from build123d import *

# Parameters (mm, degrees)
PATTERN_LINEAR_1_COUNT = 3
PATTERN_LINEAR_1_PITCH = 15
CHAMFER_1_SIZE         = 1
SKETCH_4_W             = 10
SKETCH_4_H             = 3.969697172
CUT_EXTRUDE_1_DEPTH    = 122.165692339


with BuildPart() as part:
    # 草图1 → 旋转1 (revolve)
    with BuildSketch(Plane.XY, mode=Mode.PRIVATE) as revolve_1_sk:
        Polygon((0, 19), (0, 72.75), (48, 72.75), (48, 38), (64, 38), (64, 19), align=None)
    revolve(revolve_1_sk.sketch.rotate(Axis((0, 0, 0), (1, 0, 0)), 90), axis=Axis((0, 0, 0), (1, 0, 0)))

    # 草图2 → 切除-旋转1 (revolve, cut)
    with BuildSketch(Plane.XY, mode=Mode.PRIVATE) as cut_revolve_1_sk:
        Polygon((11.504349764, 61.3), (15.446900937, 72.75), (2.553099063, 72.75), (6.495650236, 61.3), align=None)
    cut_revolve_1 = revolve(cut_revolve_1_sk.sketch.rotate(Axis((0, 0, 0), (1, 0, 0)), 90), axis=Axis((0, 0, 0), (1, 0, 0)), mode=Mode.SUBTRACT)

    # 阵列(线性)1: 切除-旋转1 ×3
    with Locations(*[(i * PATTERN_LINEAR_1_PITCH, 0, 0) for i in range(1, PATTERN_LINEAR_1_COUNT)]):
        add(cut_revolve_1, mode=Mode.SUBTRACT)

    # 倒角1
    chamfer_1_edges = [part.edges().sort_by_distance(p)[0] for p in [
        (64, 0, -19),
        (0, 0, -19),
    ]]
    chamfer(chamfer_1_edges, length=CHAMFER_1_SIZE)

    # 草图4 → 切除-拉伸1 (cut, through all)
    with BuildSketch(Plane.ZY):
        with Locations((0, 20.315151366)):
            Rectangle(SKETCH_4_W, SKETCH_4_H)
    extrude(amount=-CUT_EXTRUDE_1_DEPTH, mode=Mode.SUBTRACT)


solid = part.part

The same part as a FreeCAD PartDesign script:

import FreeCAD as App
import Part
import Sketcher

V = App.Vector
Q = App.Units.Quantity


def edges_at(feature, points):
    """Names of the edges that pass closest to the given points."""
    edges = feature.Shape.Edges
    near = lambda p: min(range(len(edges)), key=lambda i: edges[i].distToShape(Part.Vertex(*p))[0])
    return sorted({f"Edge{near(p) + 1}" for p in points})

doc = App.newDocument("Part")
body = doc.addObject("PartDesign::Body", "Body")

# Sketch on XY plane
sketch1 = doc.addObject("Sketcher::SketchObject", "Sketch")
body.addObject(sketch1)
sketch1.AttachmentSupport = (doc.XY_Plane, [""])
sketch1.MapMode = "FlatFace"
sketch1.addGeometry(Part.LineSegment(V(0, 73, 0), V(0, 19, 0)), False)
sketch1.addGeometry(Part.LineSegment(V(0, 19, 0), V(64, 19, 0)), False)
sketch1.addGeometry(Part.LineSegment(V(64, 19, 0), V(64, 38, 0)), False)
sketch1.addGeometry(Part.LineSegment(V(64, 38, 0), V(48, 38, 0)), False)
sketch1.addGeometry(Part.LineSegment(V(48, 38, 0), V(48, 73, 0)), False)
sketch1.addGeometry(Part.LineSegment(V(48, 73, 0), V(0, 73, 0)), False)
sketch1.addConstraint(Sketcher.Constraint("Coincident", 0, 2, 1, 1))
sketch1.addConstraint(Sketcher.Constraint("Coincident", 1, 2, 2, 1))
sketch1.addConstraint(Sketcher.Constraint("Coincident", 2, 2, 3, 1))
sketch1.addConstraint(Sketcher.Constraint("Coincident", 3, 2, 4, 1))
sketch1.addConstraint(Sketcher.Constraint("Coincident", 4, 2, 5, 1))
sketch1.addConstraint(Sketcher.Constraint("Coincident", 5, 2, 0, 1))
sketch1.addConstraint(Sketcher.Constraint("Vertical", 0))
sketch1.addConstraint(Sketcher.Constraint("Horizontal", 1))
sketch1.addConstraint(Sketcher.Constraint("Vertical", 2))
sketch1.addConstraint(Sketcher.Constraint("Horizontal", 3))
sketch1.addConstraint(Sketcher.Constraint("Vertical", 4))
sketch1.addConstraint(Sketcher.Constraint("Horizontal", 5))
sketch1.addConstraint(Sketcher.Constraint("PointOnObject", 0, 2, -2))
sketch1.addConstraint(Sketcher.Constraint("DistanceX", 1, 1, 1, 2, 64.0))
sketch1.addConstraint(Sketcher.Constraint("DistanceX", 3, 2, 3, 1, 16.0))
sketch1.addConstraint(Sketcher.Constraint("DistanceY", 2, 1, 2, 2, 19.0))
sketch1.addConstraint(Sketcher.Constraint("DistanceY", -1, 1, 0, 2, 19.0))
sketch1.addConstraint(Sketcher.Constraint("DistanceY", 0, 2, 0, 1, 53.75))
revolution = doc.addObject("PartDesign::Revolution", "Revolution")
body.addObject(revolution)
revolution.Profile = sketch1
revolution.ReferenceAxis = (sketch1, ["H_Axis"])
revolution.Angle = 360

# Sketch on XY plane
sketch2 = doc.addObject("Sketcher::SketchObject", "Sketch001")
body.addObject(sketch2)
sketch2.AttachmentSupport = (doc.XY_Plane, [""])
sketch2.MapMode = "FlatFace"
sketch2.addGeometry(Part.LineSegment(V(12, 61, 0), V(15, 73, 0)), False)
sketch2.addGeometry(Part.LineSegment(V(15, 73, 0), V(3, 73, 0)), False)
sketch2.addGeometry(Part.LineSegment(V(3, 73, 0), V(6, 61, 0)), False)
sketch2.addGeometry(Part.LineSegment(V(6, 61, 0), V(12, 61, 0)), False)
sketch2.addConstraint(Sketcher.Constraint("Coincident", 0, 2, 1, 1))
sketch2.addConstraint(Sketcher.Constraint("Coincident", 1, 2, 2, 1))
sketch2.addConstraint(Sketcher.Constraint("Coincident", 2, 2, 3, 1))
sketch2.addConstraint(Sketcher.Constraint("Coincident", 3, 2, 0, 1))
sketch2.addConstraint(Sketcher.Constraint("Horizontal", 1))
sketch2.addConstraint(Sketcher.Constraint("Horizontal", 3))
sketch2.addConstraint(Sketcher.Constraint("Equal", 0, 2))
sketch2.addConstraint(Sketcher.Constraint("Angle", 0, Q("71 deg")))
sketch2.addConstraint(Sketcher.Constraint("DistanceY", -1, 1, 2, 2, 61.3))
sketch2.addConstraint(Sketcher.Constraint("DistanceY", -1, 1, 0, 2, 72.75))
sketch2.addConstraint(Sketcher.Constraint("DistanceX", 1, 2, 1, 1, 12.893802))
sketch2.addConstraint(Sketcher.Constraint("DistanceX", -1, 1, 0, 2, 15.446901))
groove = doc.addObject("PartDesign::Groove", "Groove")
body.addObject(groove)
groove.Profile = sketch2
groove.ReferenceAxis = (sketch2, ["H_Axis"])
groove.Angle = 360
doc.recompute()

linearpattern = doc.addObject("PartDesign::LinearPattern", "LinearPattern")
body.addObject(linearpattern)
linearpattern.Originals = [groove]
linearpattern.Direction = (doc.X_Axis, [""])
linearpattern.Mode = "offset"
linearpattern.Offset = 15
linearpattern.Occurrences = 3
body.Tip = linearpattern
doc.recompute()

chamfer = doc.addObject("PartDesign::Chamfer", "Chamfer")
body.addObject(chamfer)
chamfer.Base = (linearpattern, edges_at(linearpattern, [(64, 0, -19), (0, 0, -19)]))
chamfer.Size = 1

# Sketch on YZ plane
sketch3 = doc.addObject("Sketcher::SketchObject", "Sketch002")
body.addObject(sketch3)
sketch3.AttachmentSupport = (doc.YZ_Plane, [""])
sketch3.MapMode = "FlatFace"
sketch3.addGeometry(Part.LineSegment(V(22.3, -5, 0), V(18.3, -5, 0)), False)
sketch3.addGeometry(Part.LineSegment(V(18.3, -5, 0), V(18.3, 5, 0)), False)
sketch3.addGeometry(Part.LineSegment(V(18.3, 5, 0), V(22.3, 5, 0)), False)
sketch3.addGeometry(Part.LineSegment(V(22.3, 5, 0), V(22.3, -5, 0)), False)
sketch3.addConstraint(Sketcher.Constraint("Coincident", 0, 2, 1, 1))
sketch3.addConstraint(Sketcher.Constraint("Coincident", 1, 2, 2, 1))
sketch3.addConstraint(Sketcher.Constraint("Coincident", 2, 2, 3, 1))
sketch3.addConstraint(Sketcher.Constraint("Coincident", 3, 2, 0, 1))
sketch3.addConstraint(Sketcher.Constraint("Horizontal", 0))
sketch3.addConstraint(Sketcher.Constraint("Vertical", 1))
sketch3.addConstraint(Sketcher.Constraint("Horizontal", 2))
sketch3.addConstraint(Sketcher.Constraint("Vertical", 3))
sketch3.addConstraint(Sketcher.Constraint("DistanceY", 1, 1, 1, 2, 10.0))
sketch3.addConstraint(Sketcher.Constraint("DistanceY", 0, 2, -1, 1, 5.0))
sketch3.addConstraint(Sketcher.Constraint("DistanceX", -1, 1, 2, 2, 22.3))
sketch3.addConstraint(Sketcher.Constraint("DistanceX", 0, 2, 0, 1, 3.969697))
pocket1 = doc.addObject("PartDesign::Pocket", "Pocket")
body.addObject(pocket1)
pocket1.Profile = sketch3
pocket1.Type = "ThroughAll"
pocket1.Reversed = True

doc.recompute()
